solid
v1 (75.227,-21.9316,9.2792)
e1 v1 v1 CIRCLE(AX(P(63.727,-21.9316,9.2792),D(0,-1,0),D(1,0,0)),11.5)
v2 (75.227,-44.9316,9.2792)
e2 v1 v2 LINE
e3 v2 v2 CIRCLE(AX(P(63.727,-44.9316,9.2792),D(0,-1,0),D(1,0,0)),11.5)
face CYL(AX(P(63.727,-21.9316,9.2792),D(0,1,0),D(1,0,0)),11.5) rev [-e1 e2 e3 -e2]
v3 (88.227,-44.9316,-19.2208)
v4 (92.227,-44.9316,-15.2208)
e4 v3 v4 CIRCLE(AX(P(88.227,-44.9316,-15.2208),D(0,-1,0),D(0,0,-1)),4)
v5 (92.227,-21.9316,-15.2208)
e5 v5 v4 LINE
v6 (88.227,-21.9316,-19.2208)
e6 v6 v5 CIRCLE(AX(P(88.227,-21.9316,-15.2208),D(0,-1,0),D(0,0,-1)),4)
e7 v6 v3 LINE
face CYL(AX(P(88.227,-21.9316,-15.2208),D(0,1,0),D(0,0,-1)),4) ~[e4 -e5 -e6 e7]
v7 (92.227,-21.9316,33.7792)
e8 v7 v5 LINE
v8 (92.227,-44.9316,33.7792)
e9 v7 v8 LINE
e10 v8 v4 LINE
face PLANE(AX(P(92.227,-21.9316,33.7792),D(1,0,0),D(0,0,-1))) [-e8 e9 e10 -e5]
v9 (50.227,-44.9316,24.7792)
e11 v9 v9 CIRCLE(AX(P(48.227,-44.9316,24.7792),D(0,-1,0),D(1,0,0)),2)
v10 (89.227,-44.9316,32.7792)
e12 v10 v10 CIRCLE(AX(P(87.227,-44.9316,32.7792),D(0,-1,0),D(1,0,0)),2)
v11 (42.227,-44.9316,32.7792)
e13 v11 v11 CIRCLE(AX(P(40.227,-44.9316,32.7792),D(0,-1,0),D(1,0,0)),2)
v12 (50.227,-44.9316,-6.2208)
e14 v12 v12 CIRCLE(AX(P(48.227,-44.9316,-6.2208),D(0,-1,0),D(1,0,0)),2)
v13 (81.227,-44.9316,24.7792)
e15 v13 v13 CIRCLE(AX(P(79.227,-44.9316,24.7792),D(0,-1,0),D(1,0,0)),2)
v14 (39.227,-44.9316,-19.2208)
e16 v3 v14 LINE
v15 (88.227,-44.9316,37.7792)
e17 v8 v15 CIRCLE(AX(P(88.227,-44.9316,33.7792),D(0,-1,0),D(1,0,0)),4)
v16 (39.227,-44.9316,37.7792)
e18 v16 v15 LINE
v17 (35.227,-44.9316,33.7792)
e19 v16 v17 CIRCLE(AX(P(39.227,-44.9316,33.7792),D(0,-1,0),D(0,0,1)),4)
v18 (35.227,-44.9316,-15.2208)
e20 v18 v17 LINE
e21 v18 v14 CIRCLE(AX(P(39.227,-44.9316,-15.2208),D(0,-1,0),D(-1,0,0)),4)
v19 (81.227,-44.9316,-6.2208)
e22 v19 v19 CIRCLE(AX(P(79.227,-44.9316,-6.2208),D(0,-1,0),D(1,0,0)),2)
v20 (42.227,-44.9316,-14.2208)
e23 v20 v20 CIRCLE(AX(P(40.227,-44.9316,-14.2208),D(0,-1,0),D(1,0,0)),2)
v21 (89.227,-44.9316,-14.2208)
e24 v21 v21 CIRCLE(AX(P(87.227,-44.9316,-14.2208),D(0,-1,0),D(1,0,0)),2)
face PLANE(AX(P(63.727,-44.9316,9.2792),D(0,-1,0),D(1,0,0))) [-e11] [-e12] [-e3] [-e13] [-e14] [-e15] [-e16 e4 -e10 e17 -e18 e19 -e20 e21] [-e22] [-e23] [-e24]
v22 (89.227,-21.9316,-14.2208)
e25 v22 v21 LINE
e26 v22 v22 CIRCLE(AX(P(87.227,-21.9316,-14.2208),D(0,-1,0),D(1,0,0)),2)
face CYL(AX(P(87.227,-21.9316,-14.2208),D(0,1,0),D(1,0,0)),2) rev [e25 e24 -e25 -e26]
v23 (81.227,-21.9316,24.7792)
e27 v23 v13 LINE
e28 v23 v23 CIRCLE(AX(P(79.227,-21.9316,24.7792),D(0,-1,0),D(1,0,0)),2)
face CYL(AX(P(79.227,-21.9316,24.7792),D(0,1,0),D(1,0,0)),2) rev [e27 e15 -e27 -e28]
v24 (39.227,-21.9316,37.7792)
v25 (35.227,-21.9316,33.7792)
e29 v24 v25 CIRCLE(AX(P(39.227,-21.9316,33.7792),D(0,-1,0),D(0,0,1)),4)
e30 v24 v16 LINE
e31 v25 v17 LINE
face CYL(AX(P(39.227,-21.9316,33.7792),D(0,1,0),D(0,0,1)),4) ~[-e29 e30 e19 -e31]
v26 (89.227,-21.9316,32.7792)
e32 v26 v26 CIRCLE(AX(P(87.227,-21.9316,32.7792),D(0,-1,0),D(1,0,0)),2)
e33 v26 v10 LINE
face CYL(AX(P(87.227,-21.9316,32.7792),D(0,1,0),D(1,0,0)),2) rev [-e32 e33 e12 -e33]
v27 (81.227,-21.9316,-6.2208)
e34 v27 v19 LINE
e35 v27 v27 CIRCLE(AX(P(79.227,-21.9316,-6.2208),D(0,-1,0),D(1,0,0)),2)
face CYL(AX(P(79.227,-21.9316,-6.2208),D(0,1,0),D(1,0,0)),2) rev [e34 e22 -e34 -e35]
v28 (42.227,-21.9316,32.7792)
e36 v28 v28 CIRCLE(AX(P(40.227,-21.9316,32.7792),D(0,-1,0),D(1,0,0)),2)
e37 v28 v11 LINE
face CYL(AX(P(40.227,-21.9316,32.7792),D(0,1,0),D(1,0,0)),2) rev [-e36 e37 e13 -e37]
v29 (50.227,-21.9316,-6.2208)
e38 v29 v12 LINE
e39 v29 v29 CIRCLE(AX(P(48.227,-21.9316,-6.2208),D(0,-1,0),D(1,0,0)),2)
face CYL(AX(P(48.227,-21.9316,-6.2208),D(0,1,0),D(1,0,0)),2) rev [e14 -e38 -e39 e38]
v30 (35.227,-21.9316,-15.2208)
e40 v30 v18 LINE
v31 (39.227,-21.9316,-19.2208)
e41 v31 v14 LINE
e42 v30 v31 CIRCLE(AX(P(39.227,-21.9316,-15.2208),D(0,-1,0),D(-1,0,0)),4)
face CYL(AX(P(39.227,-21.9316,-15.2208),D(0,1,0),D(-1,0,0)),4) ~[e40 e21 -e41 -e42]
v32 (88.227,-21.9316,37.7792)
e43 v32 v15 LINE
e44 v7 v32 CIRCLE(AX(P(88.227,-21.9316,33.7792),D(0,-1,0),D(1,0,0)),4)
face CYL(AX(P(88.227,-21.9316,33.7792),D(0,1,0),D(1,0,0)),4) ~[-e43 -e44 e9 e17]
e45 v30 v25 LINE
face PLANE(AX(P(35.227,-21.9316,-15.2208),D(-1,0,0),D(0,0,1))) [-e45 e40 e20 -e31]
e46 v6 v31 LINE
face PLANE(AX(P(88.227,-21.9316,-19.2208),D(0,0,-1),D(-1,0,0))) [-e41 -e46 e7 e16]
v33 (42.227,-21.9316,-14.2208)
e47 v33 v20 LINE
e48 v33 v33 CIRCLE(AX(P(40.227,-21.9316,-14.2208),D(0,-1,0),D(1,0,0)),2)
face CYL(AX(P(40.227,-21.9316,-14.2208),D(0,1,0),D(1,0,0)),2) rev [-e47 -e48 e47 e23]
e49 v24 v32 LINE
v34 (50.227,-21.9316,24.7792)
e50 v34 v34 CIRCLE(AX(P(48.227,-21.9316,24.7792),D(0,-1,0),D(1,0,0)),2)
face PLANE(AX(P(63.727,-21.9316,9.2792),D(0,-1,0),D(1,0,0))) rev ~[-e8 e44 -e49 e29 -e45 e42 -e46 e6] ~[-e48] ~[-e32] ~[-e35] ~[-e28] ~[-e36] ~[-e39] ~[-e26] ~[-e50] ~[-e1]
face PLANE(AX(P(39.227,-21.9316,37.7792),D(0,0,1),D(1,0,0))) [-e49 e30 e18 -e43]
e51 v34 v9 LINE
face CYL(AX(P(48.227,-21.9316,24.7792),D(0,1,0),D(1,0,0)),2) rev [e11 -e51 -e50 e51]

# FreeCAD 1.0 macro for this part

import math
import FreeCAD as App
import Part
import Sketcher
from FreeCAD import Vector
Q = App.Units.Quantity

doc = App.newDocument("Part")
body = doc.addObject("PartDesign::Body", "Body")

sketch1 = doc.addObject("Sketcher::SketchObject", "Sketch")
body.addObject(sketch1)
sketch1.AttachmentSupport = (doc.XZ_Plane, [""])
sketch1.MapMode = "FlatFace"
sketch1.AttachmentOffset = App.Placement(Vector(0, 0, 21.9316), App.Rotation())
sketch1.addGeometry(Part.LineSegment(Vector(39.2, -19.2, 0), Vector(88.2, -19.2, 0)), False)
sketch1.addGeometry(Part.ArcOfCircle(Part.Circle(Vector(88.2, -15.2, 0), Vector(0, 0, 1), 4), math.radians(-90), math.radians(0)), False)
sketch1.addGeometry(Part.LineSegment(Vector(92.2, -15.2, 0), Vector(92.2, 33.8, 0)), False)
sketch1.addGeometry(Part.ArcOfCircle(Part.Circle(Vector(88.2, 33.8, 0), Vector(0, 0, 1), 4), math.radians(0), math.radians(90)), False)
sketch1.addGeometry(Part.LineSegment(Vector(88.2, 37.8, 0), Vector(39.2, 37.8, 0)), False)
sketch1.addGeometry(Part.ArcOfCircle(Part.Circle(Vector(39.2, 33.8, 0), Vector(0, 0, 1), 4), math.radians(90), math.radians(180)), False)
sketch1.addGeometry(Part.LineSegment(Vector(35.2, 33.8, 0), Vector(35.2, -15.2, 0)), False)
sketch1.addGeometry(Part.ArcOfCircle(Part.Circle(Vector(39.2, -15.2, 0), Vector(0, 0, 1), 4), math.radians(180), math.radians(270)), False)
sketch1.addGeometry(Part.Circle(Vector(48.2, -6.2, 0), Vector(0, 0, 1), 2), False)
sketch1.addGeometry(Part.Circle(Vector(79.2, -6.2, 0), Vector(0, 0, 1), 2), False)
sketch1.addGeometry(Part.Circle(Vector(48.2, 24.8, 0), Vector(0, 0, 1), 2), False)
sketch1.addGeometry(Part.Circle(Vector(63.7, 9.3, 0), Vector(0, 0, 1), 11.5), False)
sketch1.addGeometry(Part.Circle(Vector(79.2, 24.8, 0), Vector(0, 0, 1), 2), False)
sketch1.addGeometry(Part.Circle(Vector(40.2, -14.2, 0), Vector(0, 0, 1), 2), False)
sketch1.addGeometry(Part.Circle(Vector(87.2, -14.2, 0), Vector(0, 0, 1), 2), False)
sketch1.addGeometry(Part.Circle(Vector(40.2, 32.8, 0), Vector(0, 0, 1), 2), False)
sketch1.addGeometry(Part.Circle(Vector(87.2, 32.8, 0), Vector(0, 0, 1), 2), False)
sketch1.addConstraint(Sketcher.Constraint("Tangent", 0, 2, 1, 1))
sketch1.addConstraint(Sketcher.Constraint("Tangent", 1, 2, 2, 1))
sketch1.addConstraint(Sketcher.Constraint("Tangent", 2, 2, 3, 1))
sketch1.addConstraint(Sketcher.Constraint("Tangent", 3, 2, 4, 1))
sketch1.addConstraint(Sketcher.Constraint("Tangent", 4, 2, 5, 1))
sketch1.addConstraint(Sketcher.Constraint("Tangent", 5, 2, 6, 1))
sketch1.addConstraint(Sketcher.Constraint("Tangent", 6, 2, 7, 1))
sketch1.addConstraint(Sketcher.Constraint("Tangent", 7, 2, 0, 1))
sketch1.addConstraint(Sketcher.Constraint("Horizontal", 0))
sketch1.addConstraint(Sketcher.Constraint("Vertical", 2))
sketch1.addConstraint(Sketcher.Constraint("Horizontal", 4))
sketch1.addConstraint(Sketcher.Constraint("Vertical", 6))
sketch1.addConstraint(Sketcher.Constraint("Equal", 1, 3))
sketch1.addConstraint(Sketcher.Constraint("Equal", 3, 5))
sketch1.addConstraint(Sketcher.Constraint("Equal", 5, 7))
sketch1.addConstraint(Sketcher.Constraint("Equal", 8, 9))
sketch1.addConstraint(Sketcher.Constraint("Equal", 9, 10))
sketch1.addConstraint(Sketcher.Constraint("Equal", 10, 12))
sketch1.addConstraint(Sketcher.Constraint("Equal", 12, 13))
sketch1.addConstraint(Sketcher.Constraint("Equal", 13, 14))
sketch1.addConstraint(Sketcher.Constraint("Equal", 14, 15))
sketch1.addConstraint(Sketcher.Constraint("Equal", 15, 16))
sketch1.addConstraint(Sketcher.Constraint("Horizontal", 8, 3, 9, 3))
sketch1.addConstraint(Sketcher.Constraint("Horizontal", 10, 3, 12, 3))
sketch1.addConstraint(Sketcher.Constraint("Horizontal", 13, 3, 14, 3))
sketch1.addConstraint(Sketcher.Constraint("Horizontal", 15, 3, 16, 3))
sketch1.addConstraint(Sketcher.Constraint("Vertical", 8, 3, 10, 3))
sketch1.addConstraint(Sketcher.Constraint("Vertical", 9, 3, 12, 3))
sketch1.addConstraint(Sketcher.Constraint("Vertical", 13, 3, 15, 3))
sketch1.addConstraint(Sketcher.Constraint("Vertical", 14, 3, 16, 3))
sketch1.addConstraint(Sketcher.Constraint("Equal", 4, 2))
sketch1.addConstraint(Sketcher.Constraint("Diameter", 8, Q("4 mm")))
sketch1.addConstraint(Sketcher.Constraint("Radius", 1, Q("4 mm")))
sketch1.addConstraint(Sketcher.Constraint("Diameter", 11, Q("23 mm")))
sketch1.addConstraint(Sketcher.Constraint("DistanceX", 0, 1, 0, 2, Q("49 mm")))
sketch1.addConstraint(Sketcher.Constraint("DistanceX", 7, 3, 8, 3, Q("9 mm")))
sketch1.addConstraint(Sketcher.Constraint("DistanceY", 7, 3, 8, 3, Q("9 mm")))
sketch1.addConstraint(Sketcher.Constraint("DistanceX", 9, 3, 1, 3, Q("9 mm")))
sketch1.addConstraint(Sketcher.Constraint("DistanceY", 10, 3, 5, 3, Q("9 mm")))
sketch1.addConstraint(Sketcher.Constraint("DistanceX", 7, 3, 13, 3, Q("1 mm")))
sketch1.addConstraint(Sketcher.Constraint("DistanceY", 7, 3, 13, 3, Q("1 mm")))
sketch1.addConstraint(Sketcher.Constraint("DistanceX", 14, 3, 1, 3, Q("1 mm")))
sketch1.addConstraint(Sketcher.Constraint("DistanceY", 15, 3, 5, 3, Q("1 mm")))
sketch1.addConstraint(Sketcher.Constraint("DistanceX", 8, 3, 11, 3, Q("15.5 mm")))
sketch1.addConstraint(Sketcher.Constraint("DistanceY", 8, 3, 11, 3, Q("15.5 mm")))
sketch1.addConstraint(Sketcher.Constraint("DistanceX", -1, 1, 1, 3, Q("88.227 mm")))
sketch1.addConstraint(Sketcher.Constraint("DistanceY", 1, 3, -1, 1, Q("15.2208 mm")))
pad1 = doc.addObject("PartDesign::Pad", "Pad")
body.addObject(pad1)
pad1.Profile = sketch1
pad1.Length = 23

doc.recompute()
